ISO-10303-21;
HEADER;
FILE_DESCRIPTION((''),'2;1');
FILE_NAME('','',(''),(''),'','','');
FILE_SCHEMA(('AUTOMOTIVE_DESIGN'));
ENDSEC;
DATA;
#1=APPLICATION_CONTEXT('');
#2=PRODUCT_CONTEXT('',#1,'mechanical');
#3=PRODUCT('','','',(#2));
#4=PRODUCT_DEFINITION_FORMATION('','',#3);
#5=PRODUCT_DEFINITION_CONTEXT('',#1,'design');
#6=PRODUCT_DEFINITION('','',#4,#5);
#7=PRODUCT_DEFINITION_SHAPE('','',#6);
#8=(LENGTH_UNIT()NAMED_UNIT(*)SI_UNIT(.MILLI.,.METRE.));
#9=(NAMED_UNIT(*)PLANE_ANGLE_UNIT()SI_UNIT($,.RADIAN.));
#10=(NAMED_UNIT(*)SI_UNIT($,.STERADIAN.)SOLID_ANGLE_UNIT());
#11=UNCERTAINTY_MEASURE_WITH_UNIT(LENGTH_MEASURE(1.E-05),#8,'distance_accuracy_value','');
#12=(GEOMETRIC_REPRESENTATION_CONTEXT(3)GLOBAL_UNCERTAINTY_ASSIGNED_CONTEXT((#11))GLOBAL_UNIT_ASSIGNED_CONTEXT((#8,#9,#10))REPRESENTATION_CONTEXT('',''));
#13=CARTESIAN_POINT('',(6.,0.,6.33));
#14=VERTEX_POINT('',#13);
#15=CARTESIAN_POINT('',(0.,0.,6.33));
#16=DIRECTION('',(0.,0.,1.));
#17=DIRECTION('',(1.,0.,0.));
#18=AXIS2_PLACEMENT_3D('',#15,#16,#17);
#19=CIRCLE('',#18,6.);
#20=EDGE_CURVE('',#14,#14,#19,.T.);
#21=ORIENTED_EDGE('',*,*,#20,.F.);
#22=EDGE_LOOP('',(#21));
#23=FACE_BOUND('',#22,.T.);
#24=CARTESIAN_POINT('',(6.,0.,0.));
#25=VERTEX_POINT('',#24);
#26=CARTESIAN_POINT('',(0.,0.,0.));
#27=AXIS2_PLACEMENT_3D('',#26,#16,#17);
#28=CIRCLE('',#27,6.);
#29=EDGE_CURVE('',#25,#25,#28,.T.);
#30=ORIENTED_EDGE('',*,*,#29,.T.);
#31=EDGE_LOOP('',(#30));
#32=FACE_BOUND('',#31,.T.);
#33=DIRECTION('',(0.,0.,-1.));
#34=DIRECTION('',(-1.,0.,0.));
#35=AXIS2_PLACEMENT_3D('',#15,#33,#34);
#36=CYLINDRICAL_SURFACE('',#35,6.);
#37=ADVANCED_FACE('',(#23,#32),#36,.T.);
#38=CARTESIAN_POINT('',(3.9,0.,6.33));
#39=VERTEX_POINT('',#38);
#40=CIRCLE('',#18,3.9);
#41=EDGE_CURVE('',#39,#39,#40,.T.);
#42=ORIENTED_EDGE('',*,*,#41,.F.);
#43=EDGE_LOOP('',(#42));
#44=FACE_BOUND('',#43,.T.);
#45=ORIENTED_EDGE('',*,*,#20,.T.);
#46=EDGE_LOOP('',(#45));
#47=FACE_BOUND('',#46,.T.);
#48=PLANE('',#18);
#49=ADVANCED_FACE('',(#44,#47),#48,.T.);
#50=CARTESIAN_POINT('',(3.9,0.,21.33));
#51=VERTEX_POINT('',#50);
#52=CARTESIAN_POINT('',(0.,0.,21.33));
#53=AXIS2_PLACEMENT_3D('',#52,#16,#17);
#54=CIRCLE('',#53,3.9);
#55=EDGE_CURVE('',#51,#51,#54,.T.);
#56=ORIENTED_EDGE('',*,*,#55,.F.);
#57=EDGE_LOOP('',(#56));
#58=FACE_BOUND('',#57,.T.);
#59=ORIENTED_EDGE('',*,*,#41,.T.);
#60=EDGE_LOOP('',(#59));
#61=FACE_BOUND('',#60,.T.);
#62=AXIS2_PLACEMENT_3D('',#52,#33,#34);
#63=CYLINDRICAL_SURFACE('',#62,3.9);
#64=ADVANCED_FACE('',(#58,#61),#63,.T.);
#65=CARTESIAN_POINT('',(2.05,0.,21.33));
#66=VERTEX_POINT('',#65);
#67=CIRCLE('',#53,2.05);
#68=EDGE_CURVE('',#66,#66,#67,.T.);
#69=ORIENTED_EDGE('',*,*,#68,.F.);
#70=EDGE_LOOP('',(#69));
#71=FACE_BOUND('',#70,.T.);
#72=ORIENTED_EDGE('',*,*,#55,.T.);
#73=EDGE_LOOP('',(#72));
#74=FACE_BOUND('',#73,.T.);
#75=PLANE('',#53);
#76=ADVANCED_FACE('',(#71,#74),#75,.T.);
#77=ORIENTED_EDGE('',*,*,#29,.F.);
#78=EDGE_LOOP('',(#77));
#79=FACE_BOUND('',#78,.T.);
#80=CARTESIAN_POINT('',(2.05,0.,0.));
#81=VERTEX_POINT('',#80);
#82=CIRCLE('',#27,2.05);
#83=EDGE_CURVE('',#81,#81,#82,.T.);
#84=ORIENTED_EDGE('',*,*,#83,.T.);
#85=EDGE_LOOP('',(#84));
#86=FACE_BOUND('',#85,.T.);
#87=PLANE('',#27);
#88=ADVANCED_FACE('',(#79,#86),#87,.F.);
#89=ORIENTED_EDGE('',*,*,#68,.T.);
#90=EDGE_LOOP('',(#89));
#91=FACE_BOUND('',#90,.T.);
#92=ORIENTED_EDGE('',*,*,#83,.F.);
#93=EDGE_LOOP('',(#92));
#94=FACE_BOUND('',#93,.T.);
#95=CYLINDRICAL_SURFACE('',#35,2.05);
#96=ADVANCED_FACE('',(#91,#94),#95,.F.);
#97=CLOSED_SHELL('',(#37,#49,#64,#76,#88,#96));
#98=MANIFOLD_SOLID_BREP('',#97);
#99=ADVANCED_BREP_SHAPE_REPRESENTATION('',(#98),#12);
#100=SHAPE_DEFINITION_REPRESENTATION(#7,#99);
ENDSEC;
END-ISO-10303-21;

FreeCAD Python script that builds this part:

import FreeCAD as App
import Part
import Sketcher

V = App.Vector
Q = App.Units.Quantity

doc = App.newDocument("Part")
body = doc.addObject("PartDesign::Body", "Body")

# Sketch on XY plane
sketch1 = body.newObject("Sketcher::SketchObject", "Sketch")
sketch1.AttachmentSupport = (doc.getObject("XY_Plane"), [""])
sketch1.MapMode = "FlatFace"
sketch1.addGeometry(Part.Circle(V(0, 0, 0), V(0, 0, 1), 6), False)
sketch1.addGeometry(Part.Circle(V(0, 0, 0), V(0, 0, 1), 2), False)
sketch1.addConstraint(Sketcher.Constraint("Coincident", 0, 3, -1, 1))
sketch1.addConstraint(Sketcher.Constraint("Coincident", 1, 3, -1, 1))
sketch1.addConstraint(Sketcher.Constraint("Diameter", 0, Q("12 mm")))
sketch1.addConstraint(Sketcher.Constraint("Diameter", 1, Q("4.1 mm")))
pad1 = body.newObject("PartDesign::Pad", "Pad")
pad1.Profile = sketch1
pad1.Length = 6.33

# Sketch on XY plane
sketch2 = body.newObject("Sketcher::SketchObject", "Sketch001")
sketch2.AttachmentSupport = (doc.getObject("XY_Plane"), [""])
sketch2.MapMode = "FlatFace"
sketch2.AttachmentOffset = App.Placement(V(0, 0, 6.33), App.Rotation())
sketch2.addGeometry(Part.Circle(V(0, 0, 0), V(0, 0, 1), 3.9), False)
sketch2.addGeometry(Part.Circle(V(0, 0, 0), V(0, 0, 1), 2), False)
sketch2.addConstraint(Sketcher.Constraint("Coincident", 0, 3, -1, 1))
sketch2.addConstraint(Sketcher.Constraint("Coincident", 1, 3, -1, 1))
sketch2.addConstraint(Sketcher.Constraint("Diameter", 0, Q("7.8 mm")))
sketch2.addConstraint(Sketcher.Constraint("Diameter", 1, Q("4.1 mm")))
pad2 = body.newObject("PartDesign::Pad", "Pad001")
pad2.Profile = sketch2
pad2.Length = 15

doc.recompute()
